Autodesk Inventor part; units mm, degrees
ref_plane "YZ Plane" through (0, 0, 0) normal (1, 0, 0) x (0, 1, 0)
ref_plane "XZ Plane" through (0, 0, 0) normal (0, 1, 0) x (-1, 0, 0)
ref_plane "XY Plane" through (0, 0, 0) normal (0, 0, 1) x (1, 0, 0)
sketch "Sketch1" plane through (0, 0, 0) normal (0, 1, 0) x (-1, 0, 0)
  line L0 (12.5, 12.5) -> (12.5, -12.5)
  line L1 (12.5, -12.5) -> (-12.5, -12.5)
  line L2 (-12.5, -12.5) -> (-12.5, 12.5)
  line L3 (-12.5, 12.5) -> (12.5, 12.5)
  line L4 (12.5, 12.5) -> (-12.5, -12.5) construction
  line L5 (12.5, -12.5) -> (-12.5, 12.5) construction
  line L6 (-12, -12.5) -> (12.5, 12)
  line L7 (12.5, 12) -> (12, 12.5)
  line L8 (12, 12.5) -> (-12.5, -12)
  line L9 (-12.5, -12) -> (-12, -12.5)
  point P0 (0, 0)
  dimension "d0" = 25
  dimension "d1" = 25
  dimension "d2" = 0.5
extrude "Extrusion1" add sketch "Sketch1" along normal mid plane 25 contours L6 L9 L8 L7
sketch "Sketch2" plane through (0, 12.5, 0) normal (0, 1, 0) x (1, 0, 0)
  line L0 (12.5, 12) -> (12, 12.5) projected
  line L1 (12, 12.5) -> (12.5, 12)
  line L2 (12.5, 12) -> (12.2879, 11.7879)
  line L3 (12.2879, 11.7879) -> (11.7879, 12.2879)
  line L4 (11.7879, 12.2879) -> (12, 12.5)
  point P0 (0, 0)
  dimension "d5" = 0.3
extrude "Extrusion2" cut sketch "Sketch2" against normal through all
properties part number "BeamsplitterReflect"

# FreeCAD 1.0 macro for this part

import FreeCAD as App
import Part
import Sketcher
Q = App.Units.Quantity


def add_polygon(sketch, points):
    """Adds a closed chain of lines whose ends are joined by coincident constraints."""
    first, n = sketch.GeometryCount, len(points)
    for a, b in zip(points, points[1:] + points[:1]):
        sketch.addGeometry(Part.LineSegment(App.Vector(*a, 0), App.Vector(*b, 0)), False)
    for i in range(n):
        sketch.addConstraint(Sketcher.Constraint("Coincident", first + i, 2, first + (i + 1) % n, 1))

doc = App.newDocument("Part")
body = doc.addObject("PartDesign::Body", "Body")

# Sketch on XZ plane
sketch1 = body.newObject("Sketcher::SketchObject", "Sketch")
sketch1.AttachmentSupport = (doc.getObject("XZ_Plane"), [""])
sketch1.MapMode = "FlatFace"
add_polygon(sketch1, [(12, -12.5), (-12.5, 12), (-12, 12.5), (12.5, -12)])  # lines 0-3
sketch1.addConstraint([
    Sketcher.Constraint("Symmetric", 0, 2, 2, 2, -1, 1),
    Sketcher.Constraint("Symmetric", 1, 2, 3, 2, -1, 1),
    Sketcher.Constraint("Perpendicular", 0, 1),
    Sketcher.Constraint("DistanceX", 0, 2, 2, 2, 25.0),
    Sketcher.Constraint("DistanceY", 3, 2, 1, 2, 25.0),
    Sketcher.Constraint("DistanceX", 0, 2, 1, 2, 0.5),
])
pad1 = body.newObject("PartDesign::Pad", "Pad")
pad1.Profile = sketch1
pad1.Length = 25
pad1.Midplane = True

# Sketch on XZ plane
sketch2 = body.newObject("Sketcher::SketchObject", "Sketch001")
sketch2.AttachmentSupport = (doc.getObject("XZ_Plane"), [""])
sketch2.MapMode = "FlatFace"
sketch2.AttachmentOffset = App.Placement(App.Vector(0, 0, -12.5), App.Rotation())
add_polygon(sketch2, [(12.29, -11.79), (12.5, -12), (12, -12.5), (11.79, -12.29)])  # lines 0-3
sketch2.addConstraint([
    Sketcher.Constraint("Perpendicular", 0, 1),
    Sketcher.Constraint("Perpendicular", 1, 2),
    Sketcher.Constraint("Perpendicular", 2, 3),
    Sketcher.Constraint("Distance", 0, 0.3),
    Sketcher.Constraint("Angle", 0, Q("-45 deg")),
    Sketcher.Constraint("DistanceY", 0, 2, -1, 1, 12.0),
    Sketcher.Constraint("DistanceX", -1, 1, 1, 2, 12.0),
    Sketcher.Constraint("DistanceX", -1, 1, 0, 2, 12.5),
])
pocket1 = body.newObject("PartDesign::Pocket", "Pocket")
pocket1.Profile = sketch2
pocket1.Type = "ThroughAll"
pocket1.Reversed = True

doc.recompute()
